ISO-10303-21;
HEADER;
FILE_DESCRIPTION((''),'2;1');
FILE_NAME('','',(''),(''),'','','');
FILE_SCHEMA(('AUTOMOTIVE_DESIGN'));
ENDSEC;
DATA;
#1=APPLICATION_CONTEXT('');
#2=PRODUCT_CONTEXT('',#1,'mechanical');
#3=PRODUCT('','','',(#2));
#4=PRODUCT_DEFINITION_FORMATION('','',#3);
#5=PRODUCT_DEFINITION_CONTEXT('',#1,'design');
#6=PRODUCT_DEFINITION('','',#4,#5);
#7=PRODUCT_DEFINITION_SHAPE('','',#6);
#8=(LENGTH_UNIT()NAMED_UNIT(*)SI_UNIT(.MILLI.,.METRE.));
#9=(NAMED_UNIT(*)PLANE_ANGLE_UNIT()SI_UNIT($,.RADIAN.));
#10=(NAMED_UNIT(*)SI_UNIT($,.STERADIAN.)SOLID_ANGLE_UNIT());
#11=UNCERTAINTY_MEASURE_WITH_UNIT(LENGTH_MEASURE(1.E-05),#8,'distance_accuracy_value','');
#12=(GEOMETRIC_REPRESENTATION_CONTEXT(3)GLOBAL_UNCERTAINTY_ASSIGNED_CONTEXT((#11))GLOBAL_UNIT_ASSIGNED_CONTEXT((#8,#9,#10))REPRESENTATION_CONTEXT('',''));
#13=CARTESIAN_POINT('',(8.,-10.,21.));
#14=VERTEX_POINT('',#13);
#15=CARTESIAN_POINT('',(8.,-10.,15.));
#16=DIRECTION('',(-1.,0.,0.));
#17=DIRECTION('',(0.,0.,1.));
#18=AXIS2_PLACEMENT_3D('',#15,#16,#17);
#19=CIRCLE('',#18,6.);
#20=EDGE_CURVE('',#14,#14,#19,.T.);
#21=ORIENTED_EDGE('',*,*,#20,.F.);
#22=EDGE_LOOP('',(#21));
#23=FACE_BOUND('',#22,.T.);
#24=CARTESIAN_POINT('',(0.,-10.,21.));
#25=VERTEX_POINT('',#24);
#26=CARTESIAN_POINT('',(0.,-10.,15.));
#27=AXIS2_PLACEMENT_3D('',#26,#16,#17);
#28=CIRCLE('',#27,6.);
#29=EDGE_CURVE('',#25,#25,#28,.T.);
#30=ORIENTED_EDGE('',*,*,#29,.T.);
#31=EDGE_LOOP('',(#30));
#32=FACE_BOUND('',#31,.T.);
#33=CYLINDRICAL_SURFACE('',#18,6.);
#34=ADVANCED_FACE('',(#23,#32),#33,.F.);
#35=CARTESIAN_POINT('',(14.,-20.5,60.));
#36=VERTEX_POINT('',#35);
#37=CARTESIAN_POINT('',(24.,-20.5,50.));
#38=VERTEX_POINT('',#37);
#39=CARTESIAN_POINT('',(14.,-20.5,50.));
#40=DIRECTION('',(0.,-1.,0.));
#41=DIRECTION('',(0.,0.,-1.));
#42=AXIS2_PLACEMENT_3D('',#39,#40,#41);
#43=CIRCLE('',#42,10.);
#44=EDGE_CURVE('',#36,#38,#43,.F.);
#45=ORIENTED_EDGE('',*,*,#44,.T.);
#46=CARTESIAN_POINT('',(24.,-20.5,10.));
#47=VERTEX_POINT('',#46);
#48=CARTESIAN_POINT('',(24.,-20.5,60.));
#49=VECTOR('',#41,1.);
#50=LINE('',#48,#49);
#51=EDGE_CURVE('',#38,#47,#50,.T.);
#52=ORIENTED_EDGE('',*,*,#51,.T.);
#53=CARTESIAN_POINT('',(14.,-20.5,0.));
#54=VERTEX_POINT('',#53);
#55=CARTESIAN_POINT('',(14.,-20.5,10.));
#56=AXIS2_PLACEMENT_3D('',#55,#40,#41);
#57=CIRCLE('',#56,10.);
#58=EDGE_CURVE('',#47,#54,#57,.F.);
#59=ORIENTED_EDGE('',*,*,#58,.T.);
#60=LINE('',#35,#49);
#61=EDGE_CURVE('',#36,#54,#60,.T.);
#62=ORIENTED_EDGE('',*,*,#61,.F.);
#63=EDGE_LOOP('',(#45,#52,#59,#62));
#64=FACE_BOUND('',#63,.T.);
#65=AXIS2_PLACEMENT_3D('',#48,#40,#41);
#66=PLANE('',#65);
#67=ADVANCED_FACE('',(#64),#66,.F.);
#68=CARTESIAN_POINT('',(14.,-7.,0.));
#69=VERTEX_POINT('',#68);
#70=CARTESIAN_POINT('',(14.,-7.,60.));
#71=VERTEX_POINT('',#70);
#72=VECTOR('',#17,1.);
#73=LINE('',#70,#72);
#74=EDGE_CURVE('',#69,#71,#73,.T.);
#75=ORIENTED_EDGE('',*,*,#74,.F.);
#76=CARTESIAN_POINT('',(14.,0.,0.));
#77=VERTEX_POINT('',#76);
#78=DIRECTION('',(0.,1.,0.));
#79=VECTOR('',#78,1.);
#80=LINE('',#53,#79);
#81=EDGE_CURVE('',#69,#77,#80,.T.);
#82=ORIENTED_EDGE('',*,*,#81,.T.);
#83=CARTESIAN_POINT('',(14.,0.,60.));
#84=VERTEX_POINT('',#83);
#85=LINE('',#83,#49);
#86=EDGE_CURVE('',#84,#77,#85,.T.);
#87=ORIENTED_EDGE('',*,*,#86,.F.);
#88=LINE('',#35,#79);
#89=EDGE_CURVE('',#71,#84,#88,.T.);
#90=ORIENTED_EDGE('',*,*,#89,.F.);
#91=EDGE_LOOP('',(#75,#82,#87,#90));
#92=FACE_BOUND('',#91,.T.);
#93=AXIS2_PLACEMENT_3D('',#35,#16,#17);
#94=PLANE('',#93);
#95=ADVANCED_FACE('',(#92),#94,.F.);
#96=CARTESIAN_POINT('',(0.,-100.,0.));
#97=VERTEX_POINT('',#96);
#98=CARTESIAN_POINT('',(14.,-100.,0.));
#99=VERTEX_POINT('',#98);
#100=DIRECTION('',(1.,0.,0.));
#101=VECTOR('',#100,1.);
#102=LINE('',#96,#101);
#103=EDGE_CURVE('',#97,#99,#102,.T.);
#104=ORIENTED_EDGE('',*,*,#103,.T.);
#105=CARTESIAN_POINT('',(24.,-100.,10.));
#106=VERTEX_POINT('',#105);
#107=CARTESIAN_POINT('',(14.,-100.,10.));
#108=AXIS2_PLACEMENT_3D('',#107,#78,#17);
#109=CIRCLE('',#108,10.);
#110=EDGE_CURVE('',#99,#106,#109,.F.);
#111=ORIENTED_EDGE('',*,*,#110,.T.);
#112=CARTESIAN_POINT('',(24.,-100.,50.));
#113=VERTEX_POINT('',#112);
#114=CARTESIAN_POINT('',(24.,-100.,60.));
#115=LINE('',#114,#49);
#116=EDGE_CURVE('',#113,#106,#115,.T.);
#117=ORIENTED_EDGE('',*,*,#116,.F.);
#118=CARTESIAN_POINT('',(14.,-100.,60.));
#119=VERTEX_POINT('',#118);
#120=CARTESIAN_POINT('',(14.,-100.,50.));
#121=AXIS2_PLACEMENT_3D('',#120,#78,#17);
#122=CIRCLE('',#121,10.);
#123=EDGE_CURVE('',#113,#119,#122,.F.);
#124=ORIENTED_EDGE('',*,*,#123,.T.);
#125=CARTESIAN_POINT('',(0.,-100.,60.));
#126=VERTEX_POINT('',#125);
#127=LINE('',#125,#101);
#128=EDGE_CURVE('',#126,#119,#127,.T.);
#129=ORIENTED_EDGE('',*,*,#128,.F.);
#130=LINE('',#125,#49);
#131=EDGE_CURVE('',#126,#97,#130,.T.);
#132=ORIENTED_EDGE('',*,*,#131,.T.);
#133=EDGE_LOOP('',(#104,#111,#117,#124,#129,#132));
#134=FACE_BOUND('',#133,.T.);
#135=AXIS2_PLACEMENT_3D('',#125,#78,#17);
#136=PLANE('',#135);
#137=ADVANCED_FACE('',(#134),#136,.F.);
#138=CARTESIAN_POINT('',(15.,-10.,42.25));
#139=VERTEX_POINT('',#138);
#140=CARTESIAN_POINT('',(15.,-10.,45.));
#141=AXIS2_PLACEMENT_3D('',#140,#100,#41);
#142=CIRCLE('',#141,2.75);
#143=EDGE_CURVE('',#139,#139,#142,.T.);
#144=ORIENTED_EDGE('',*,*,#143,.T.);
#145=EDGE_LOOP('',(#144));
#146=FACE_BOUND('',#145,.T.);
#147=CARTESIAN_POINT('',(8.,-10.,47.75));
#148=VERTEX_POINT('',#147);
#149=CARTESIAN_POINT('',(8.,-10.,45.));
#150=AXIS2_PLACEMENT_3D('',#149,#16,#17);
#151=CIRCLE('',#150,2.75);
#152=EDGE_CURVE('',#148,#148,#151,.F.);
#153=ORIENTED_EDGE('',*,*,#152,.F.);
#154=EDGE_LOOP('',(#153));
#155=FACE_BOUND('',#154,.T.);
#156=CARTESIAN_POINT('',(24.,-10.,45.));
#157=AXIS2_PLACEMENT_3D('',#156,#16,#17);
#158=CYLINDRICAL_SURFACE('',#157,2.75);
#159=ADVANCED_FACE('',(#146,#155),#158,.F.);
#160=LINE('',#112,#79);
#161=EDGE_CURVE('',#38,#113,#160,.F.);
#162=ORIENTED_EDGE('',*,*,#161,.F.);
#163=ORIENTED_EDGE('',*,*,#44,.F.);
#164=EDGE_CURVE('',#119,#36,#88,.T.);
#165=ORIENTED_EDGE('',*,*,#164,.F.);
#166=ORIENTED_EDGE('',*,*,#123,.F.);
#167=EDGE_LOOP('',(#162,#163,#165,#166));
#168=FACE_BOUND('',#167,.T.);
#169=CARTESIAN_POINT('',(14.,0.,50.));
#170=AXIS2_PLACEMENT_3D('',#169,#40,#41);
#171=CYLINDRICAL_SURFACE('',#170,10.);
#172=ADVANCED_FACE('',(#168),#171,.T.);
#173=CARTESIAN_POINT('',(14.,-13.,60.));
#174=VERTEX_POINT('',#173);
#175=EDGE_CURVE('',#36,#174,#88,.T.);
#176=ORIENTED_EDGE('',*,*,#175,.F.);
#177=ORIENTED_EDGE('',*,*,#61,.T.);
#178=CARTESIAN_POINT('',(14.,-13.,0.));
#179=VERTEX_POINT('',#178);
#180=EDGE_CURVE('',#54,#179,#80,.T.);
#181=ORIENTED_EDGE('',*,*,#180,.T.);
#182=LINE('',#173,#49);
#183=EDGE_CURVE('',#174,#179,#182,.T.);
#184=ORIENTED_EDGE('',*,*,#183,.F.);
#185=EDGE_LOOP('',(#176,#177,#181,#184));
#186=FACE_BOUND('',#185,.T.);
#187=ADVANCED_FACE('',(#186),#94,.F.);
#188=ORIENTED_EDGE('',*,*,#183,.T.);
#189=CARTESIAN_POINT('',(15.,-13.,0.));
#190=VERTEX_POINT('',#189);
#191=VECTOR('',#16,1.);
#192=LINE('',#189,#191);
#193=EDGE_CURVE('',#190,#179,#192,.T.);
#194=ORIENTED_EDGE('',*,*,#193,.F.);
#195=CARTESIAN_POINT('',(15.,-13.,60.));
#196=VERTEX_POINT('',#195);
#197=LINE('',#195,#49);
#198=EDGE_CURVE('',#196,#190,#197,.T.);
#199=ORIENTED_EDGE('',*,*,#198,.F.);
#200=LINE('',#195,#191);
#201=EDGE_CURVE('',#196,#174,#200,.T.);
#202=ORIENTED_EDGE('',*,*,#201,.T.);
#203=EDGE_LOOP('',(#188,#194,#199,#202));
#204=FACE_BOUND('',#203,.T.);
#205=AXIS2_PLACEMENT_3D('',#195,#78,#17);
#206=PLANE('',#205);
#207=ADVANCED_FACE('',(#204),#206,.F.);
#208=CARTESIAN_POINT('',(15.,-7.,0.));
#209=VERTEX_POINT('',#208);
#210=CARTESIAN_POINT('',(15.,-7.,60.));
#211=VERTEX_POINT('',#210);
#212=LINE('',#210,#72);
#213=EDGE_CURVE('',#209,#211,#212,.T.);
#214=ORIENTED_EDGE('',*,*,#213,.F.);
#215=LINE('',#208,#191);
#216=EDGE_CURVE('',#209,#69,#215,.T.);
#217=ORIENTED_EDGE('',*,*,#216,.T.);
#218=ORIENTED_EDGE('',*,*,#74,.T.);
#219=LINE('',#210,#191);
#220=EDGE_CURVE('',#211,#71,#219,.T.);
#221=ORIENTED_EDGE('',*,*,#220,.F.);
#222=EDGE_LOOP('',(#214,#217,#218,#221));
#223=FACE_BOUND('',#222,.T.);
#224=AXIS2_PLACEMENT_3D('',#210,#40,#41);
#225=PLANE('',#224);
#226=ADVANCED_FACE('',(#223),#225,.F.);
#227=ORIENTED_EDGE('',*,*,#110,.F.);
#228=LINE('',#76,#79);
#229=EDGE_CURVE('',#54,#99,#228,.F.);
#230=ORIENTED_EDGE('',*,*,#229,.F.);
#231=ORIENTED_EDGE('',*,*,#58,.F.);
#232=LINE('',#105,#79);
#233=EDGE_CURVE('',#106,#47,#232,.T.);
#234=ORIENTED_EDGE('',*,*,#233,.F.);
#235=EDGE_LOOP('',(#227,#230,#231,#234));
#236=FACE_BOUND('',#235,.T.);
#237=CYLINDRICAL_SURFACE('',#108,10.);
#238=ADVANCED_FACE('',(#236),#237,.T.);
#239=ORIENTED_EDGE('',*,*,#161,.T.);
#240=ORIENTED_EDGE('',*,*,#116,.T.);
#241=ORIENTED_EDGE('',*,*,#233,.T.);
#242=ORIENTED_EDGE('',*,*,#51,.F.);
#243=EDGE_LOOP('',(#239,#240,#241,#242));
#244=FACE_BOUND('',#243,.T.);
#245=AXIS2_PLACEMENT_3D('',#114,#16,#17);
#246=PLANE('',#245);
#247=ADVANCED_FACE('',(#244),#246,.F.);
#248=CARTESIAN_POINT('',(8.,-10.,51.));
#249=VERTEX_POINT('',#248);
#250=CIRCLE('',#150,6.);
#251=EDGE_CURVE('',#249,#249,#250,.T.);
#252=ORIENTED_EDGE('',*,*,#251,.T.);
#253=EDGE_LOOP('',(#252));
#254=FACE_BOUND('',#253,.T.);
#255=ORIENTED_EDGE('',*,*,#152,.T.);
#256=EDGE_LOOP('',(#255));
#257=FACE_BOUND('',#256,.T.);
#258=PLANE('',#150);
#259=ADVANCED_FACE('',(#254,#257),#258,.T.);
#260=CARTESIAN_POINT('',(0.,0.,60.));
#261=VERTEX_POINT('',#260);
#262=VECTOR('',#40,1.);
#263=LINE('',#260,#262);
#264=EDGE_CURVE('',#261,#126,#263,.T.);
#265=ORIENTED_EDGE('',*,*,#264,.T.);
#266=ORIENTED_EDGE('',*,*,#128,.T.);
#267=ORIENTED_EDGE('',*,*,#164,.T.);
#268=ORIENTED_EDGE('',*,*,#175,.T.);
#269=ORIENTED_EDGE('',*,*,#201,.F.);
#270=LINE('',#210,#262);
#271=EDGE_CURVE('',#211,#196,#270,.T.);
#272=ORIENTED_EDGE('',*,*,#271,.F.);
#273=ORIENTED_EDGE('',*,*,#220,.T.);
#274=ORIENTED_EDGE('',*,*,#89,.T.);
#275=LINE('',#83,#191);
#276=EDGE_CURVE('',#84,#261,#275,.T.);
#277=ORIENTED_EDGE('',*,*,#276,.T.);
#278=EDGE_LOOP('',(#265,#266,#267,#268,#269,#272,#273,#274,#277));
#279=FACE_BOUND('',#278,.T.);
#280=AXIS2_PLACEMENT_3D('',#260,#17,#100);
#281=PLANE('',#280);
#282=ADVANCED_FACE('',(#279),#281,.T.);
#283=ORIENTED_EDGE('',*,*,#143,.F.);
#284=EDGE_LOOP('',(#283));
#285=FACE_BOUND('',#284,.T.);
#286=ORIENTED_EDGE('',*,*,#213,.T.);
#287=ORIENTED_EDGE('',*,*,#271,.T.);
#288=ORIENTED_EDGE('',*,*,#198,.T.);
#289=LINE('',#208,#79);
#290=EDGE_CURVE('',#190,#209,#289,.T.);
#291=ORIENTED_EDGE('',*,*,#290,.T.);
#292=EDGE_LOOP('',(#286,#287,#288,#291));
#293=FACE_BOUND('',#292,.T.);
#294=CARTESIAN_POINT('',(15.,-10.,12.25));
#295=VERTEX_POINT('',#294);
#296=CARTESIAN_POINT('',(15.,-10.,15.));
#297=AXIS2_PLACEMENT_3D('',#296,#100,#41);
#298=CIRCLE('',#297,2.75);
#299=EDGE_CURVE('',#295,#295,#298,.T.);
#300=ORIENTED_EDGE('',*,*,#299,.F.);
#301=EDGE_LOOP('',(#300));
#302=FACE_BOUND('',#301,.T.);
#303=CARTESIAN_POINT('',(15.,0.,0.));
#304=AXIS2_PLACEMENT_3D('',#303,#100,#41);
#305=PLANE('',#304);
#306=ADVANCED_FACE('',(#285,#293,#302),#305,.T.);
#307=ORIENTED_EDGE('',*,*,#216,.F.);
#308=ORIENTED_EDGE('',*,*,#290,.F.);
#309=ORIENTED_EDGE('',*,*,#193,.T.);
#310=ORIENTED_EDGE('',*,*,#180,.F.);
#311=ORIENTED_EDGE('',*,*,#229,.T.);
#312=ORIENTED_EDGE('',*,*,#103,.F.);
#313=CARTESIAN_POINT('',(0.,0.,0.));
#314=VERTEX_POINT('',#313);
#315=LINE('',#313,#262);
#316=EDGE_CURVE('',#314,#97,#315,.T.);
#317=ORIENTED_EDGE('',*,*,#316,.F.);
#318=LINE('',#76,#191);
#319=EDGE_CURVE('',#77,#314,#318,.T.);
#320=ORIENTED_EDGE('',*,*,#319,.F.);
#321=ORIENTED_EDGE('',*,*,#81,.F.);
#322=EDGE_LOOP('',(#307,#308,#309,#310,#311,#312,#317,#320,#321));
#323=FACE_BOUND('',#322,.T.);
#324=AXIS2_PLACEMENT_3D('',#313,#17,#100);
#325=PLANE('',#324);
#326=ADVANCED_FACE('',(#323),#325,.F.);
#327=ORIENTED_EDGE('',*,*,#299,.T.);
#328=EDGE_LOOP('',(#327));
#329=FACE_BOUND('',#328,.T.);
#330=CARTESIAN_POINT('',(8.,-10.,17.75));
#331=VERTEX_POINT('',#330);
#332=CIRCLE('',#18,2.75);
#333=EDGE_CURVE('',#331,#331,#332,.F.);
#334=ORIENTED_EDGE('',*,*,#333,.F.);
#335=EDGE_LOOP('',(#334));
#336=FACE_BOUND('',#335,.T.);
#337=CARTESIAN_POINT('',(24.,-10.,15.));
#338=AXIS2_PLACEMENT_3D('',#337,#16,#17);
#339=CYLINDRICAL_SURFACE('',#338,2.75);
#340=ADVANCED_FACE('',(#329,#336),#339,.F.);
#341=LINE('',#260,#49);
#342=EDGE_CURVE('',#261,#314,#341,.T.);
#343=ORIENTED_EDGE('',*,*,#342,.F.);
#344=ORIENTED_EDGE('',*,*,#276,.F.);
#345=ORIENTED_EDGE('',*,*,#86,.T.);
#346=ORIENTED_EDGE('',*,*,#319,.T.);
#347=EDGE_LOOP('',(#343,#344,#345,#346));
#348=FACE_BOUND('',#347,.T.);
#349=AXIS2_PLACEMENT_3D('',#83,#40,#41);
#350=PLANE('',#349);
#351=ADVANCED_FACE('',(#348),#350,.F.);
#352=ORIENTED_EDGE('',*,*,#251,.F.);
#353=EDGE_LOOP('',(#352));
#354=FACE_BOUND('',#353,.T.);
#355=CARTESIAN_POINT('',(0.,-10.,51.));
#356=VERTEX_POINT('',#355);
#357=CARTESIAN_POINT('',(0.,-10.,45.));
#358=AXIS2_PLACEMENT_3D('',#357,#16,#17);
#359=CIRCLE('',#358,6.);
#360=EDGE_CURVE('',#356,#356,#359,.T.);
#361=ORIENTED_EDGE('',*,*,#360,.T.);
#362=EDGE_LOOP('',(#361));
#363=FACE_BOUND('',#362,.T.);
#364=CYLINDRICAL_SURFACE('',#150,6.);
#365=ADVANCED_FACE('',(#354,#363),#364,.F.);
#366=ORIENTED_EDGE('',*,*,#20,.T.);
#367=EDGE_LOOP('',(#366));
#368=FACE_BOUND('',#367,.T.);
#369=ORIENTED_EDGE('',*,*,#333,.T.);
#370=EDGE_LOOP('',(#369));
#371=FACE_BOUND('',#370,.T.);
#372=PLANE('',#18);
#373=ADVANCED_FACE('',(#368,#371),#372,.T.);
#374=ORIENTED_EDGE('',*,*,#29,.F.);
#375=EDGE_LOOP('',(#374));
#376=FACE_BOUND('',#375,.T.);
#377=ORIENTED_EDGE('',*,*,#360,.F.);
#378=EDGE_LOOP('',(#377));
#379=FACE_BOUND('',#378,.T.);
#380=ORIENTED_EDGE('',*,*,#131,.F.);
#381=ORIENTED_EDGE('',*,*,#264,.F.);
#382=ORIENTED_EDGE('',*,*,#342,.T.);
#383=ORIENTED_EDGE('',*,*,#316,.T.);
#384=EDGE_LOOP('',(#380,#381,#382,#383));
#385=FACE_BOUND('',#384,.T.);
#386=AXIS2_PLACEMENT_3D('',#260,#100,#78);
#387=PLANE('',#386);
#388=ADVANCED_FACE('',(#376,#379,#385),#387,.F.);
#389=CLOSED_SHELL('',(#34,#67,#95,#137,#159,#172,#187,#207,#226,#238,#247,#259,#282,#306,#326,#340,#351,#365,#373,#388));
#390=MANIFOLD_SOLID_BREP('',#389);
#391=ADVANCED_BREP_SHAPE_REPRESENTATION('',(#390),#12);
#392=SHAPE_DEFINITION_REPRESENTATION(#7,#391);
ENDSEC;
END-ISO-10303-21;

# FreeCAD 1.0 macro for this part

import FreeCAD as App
import Part
import Sketcher

V = App.Vector
Q = App.Units.Quantity


def edges_at(feature, points):
    """Names of the edges that pass closest to the given points."""
    edges = feature.Shape.Edges
    near = lambda p: min(range(len(edges)), key=lambda i: edges[i].distToShape(Part.Vertex(*p))[0])
    return sorted({f"Edge{near(p) + 1}" for p in points})


def add_polygon(sketch, points):
    """Adds a closed chain of lines whose ends are joined by coincident constraints."""
    first, n = sketch.GeometryCount, len(points)
    for a, b in zip(points, points[1:] + points[:1]):
        sketch.addGeometry(Part.LineSegment(App.Vector(*a, 0), App.Vector(*b, 0)), False)
    for i in range(n):
        sketch.addConstraint(Sketcher.Constraint("Coincident", first + i, 2, first + (i + 1) % n, 1))

doc = App.newDocument("Part")
body = doc.addObject("PartDesign::Body", "Body")

# Sketch on XY plane
sketch1 = doc.addObject("Sketcher::SketchObject", "Sketch")
body.addObject(sketch1)
sketch1.AttachmentSupport = (doc.XY_Plane, [""])
sketch1.MapMode = "FlatFace"
add_polygon(sketch1, [(24, -100), (24, -20), (14, -20), (14, 0), (0, 0), (0, -100)])  # lines 0-5
sketch1.addConstraint([
    Sketcher.Constraint("Vertical", 0),
    Sketcher.Constraint("Horizontal", 1),
    Sketcher.Constraint("Vertical", 2),
    Sketcher.Constraint("Horizontal", 3),
    Sketcher.Constraint("Vertical", 4),
    Sketcher.Constraint("Horizontal", 5),
    Sketcher.Constraint("Coincident", 3, 2, -1, 1),
    Sketcher.Constraint("DistanceX", 1, 2, 1, 1, Q("10 mm")),
    Sketcher.Constraint("DistanceX", 3, 2, 3, 1, Q("14 mm")),
    Sketcher.Constraint("DistanceY", 4, 2, 4, 1, Q("100 mm")),
    Sketcher.Constraint("DistanceY", 0, 1, 0, 2, Q("79.5 mm")),
])
pad1 = doc.addObject("PartDesign::Pad", "Pad")
body.addObject(pad1)
pad1.Profile = sketch1
pad1.Length = 60

# Sketch on YZ plane
sketch2 = doc.addObject("Sketcher::SketchObject", "Sketch001")
body.addObject(sketch2)
sketch2.AttachmentSupport = (doc.YZ_Plane, [""])
sketch2.MapMode = "FlatFace"
sketch2.AttachmentOffset = App.Placement(V(0, 0, 14), App.Rotation())
add_polygon(sketch2, [(-7, 60), (-13, 60), (-13, 0), (-7, 0)])  # lines 0-3
sketch2.addConstraint([
    Sketcher.Constraint("Horizontal", 0),
    Sketcher.Constraint("Vertical", 1),
    Sketcher.Constraint("Horizontal", 2),
    Sketcher.Constraint("Vertical", 3),
    Sketcher.Constraint("PointOnObject", 1, 2, -1),
    Sketcher.Constraint("DistanceX", 0, 2, 0, 1, Q("6 mm")),
    Sketcher.Constraint("DistanceY", 1, 2, 1, 1, Q("60 mm")),
    Sketcher.Constraint("DistanceX", 0, 2, -1, 1, Q("13 mm")),
])
pad2 = doc.addObject("PartDesign::Pad", "Pad001")
body.addObject(pad2)
pad2.Profile = sketch2
pad2.Length = 1

# Sketch on YZ plane
sketch3 = doc.addObject("Sketcher::SketchObject", "Sketch002")
body.addObject(sketch3)
sketch3.AttachmentSupport = (doc.YZ_Plane, [""])
sketch3.MapMode = "FlatFace"
sketch3.addGeometry([
    Part.Circle(V(-10, 15, 0), V(0, 0, 1), 2.8),
    Part.Circle(V(-10, 45, 0), V(0, 0, 1), 2.8),
], False)
sketch3.addConstraint([
    Sketcher.Constraint("Equal", 0, 1),
    Sketcher.Constraint("Vertical", 0, 3, 1, 3),
    Sketcher.Constraint("Diameter", 0, Q("5.5 mm")),
    Sketcher.Constraint("DistanceX", 0, 3, -1, 1, Q("10 mm")),
    Sketcher.Constraint("DistanceY", -1, 1, 0, 3, Q("15 mm")),
    Sketcher.Constraint("DistanceY", -1, 1, 1, 3, Q("45 mm")),
])
pocket1 = doc.addObject("PartDesign::Pocket", "Pocket")
body.addObject(pocket1)
pocket1.Profile = sketch3
pocket1.Type = "ThroughAll"
pocket1.Reversed = True

# Sketch on YZ plane
sketch4 = doc.addObject("Sketcher::SketchObject", "Sketch003")
body.addObject(sketch4)
sketch4.AttachmentSupport = (doc.YZ_Plane, [""])
sketch4.MapMode = "FlatFace"
sketch4.addGeometry([
    Part.Circle(V(-10, 15, 0), V(0, 0, 1), 6),
    Part.Circle(V(-10, 45, 0), V(0, 0, 1), 6),
], False)
sketch4.addConstraint([
    Sketcher.Constraint("Equal", 0, 1),
    Sketcher.Constraint("Vertical", 0, 3, 1, 3),
    Sketcher.Constraint("Diameter", 0, Q("12 mm")),
    Sketcher.Constraint("DistanceX", 0, 3, -1, 1, Q("10 mm")),
    Sketcher.Constraint("DistanceY", -1, 1, 0, 3, Q("15 mm")),
    Sketcher.Constraint("DistanceY", -1, 1, 1, 3, Q("45 mm")),
])
pocket2 = doc.addObject("PartDesign::Pocket", "Pocket001")
body.addObject(pocket2)
pocket2.Profile = sketch4
pocket2.Length = 8
pocket2.Reversed = True
doc.recompute()

fillet = doc.addObject("PartDesign::Fillet", "Fillet")
body.addObject(fillet)
fillet.Base = (pocket2, edges_at(pocket2, [(24, -60.25, 0), (24, -60.25, 60)]))
fillet.Radius = 10

doc.recompute()
